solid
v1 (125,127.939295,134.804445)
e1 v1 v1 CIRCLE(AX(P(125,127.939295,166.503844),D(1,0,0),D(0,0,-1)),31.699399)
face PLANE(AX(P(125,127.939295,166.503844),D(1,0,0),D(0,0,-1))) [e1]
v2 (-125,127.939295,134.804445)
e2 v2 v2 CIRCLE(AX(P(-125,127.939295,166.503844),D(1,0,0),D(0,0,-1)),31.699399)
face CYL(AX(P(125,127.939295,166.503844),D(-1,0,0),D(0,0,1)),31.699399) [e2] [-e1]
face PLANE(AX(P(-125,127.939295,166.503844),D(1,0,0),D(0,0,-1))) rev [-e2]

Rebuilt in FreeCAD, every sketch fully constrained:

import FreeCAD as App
import Part
import Sketcher

doc = App.newDocument("Part")
body = doc.addObject("PartDesign::Body", "Body")

sketch1 = body.newObject("Sketcher::SketchObject", "Sketch")
sketch1.AttachmentSupport = (doc.getObject("YZ_Plane"), [""])
sketch1.MapMode = "FlatFace"
sketch1.addGeometry(Part.Circle(App.Vector(127.939295, 166.503844, 0), App.Vector(0, 0, 1), 31.699399), False)
sketch1.addConstraint(Sketcher.Constraint("Diameter", 0, 63.398797))
sketch1.addConstraint(Sketcher.Constraint("DistanceX", -1, 1, 0, 3, 127.939295))
sketch1.addConstraint(Sketcher.Constraint("DistanceY", -1, 1, 0, 3, 166.503844))
pad1 = body.newObject("PartDesign::Pad", "Pad")
pad1.Profile = sketch1
pad1.Length = 250
pad1.Midplane = True

doc.recompute()
